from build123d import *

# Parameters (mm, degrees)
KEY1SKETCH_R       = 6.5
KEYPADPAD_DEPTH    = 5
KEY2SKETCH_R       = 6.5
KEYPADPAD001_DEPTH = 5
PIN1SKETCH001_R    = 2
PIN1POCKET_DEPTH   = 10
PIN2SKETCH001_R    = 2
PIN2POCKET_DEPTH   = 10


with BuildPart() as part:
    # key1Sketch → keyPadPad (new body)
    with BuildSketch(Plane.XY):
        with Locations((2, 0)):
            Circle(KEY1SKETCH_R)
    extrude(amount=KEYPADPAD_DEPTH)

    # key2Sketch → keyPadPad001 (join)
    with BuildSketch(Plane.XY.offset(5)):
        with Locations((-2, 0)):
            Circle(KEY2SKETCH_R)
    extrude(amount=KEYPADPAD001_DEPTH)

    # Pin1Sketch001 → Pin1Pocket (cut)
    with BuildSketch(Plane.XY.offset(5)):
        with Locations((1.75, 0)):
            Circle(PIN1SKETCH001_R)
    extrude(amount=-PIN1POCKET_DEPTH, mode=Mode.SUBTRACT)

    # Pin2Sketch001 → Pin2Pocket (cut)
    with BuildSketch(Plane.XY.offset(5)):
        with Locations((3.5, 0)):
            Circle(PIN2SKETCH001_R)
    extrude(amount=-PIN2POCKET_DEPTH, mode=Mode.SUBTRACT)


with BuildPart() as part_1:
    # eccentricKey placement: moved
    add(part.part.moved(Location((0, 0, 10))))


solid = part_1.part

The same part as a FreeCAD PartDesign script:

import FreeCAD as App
import Part
import Sketcher

V = App.Vector

doc = App.newDocument("Part")
params = doc.addObject("Spreadsheet::Sheet", "Params")
for row, (alias, value) in enumerate([
    ("sketch1_diameter", "13 mm"),
    ("pad1_length", "5 mm"),
    ("sketch2_diameter", "13 mm"),
    ("pad2_length", "5 mm"),
    ("sketch3_diameter", "4 mm"),
    ("pocket1_length", "10 mm"),
    ("sketch4_diameter", "4 mm"),
    ("pocket2_length", "10 mm"),
], start=1):
    params.set(f"A{row}", alias)
    params.set(f"B{row}", "=" + value)
    params.setAlias(f"B{row}", alias)

body = doc.addObject("PartDesign::Body", "Body")

# Sketch on XY plane
sketch1 = doc.addObject("Sketcher::SketchObject", "Sketch")
body.addObject(sketch1)
sketch1.AttachmentSupport = (doc.XY_Plane, [""])
sketch1.MapMode = "FlatFace"
sketch1.addGeometry(Part.Circle(V(2, 0, 0), V(0, 0, 1), 6), False)
sketch1.addConstraint(Sketcher.Constraint("PointOnObject", 0, 3, -1))
sketch1.addConstraint(Sketcher.Constraint("Diameter", 0, 13.0))
sketch1.addConstraint(Sketcher.Constraint("DistanceX", -1, 1, 0, 3, 2.0))
sketch1.setExpression("Constraints[1]", "Params.sketch1_diameter")
pad1 = doc.addObject("PartDesign::Pad", "Pad")
body.addObject(pad1)
pad1.Profile = sketch1
pad1.setExpression("Length", "Params.pad1_length")

# Sketch on XY plane
sketch2 = doc.addObject("Sketcher::SketchObject", "Sketch001")
body.addObject(sketch2)
sketch2.AttachmentSupport = (doc.XY_Plane, [""])
sketch2.MapMode = "FlatFace"
sketch2.AttachmentOffset = App.Placement(V(0, 0, 5), App.Rotation())
sketch2.addGeometry(Part.Circle(V(-2, 0, 0), V(0, 0, 1), 6), False)
sketch2.addConstraint(Sketcher.Constraint("PointOnObject", 0, 3, -1))
sketch2.addConstraint(Sketcher.Constraint("Diameter", 0, 13.0))
sketch2.addConstraint(Sketcher.Constraint("DistanceX", 0, 3, -1, 1, 2.0))
sketch2.setExpression("Constraints[1]", "Params.sketch2_diameter")
pad2 = doc.addObject("PartDesign::Pad", "Pad001")
body.addObject(pad2)
pad2.Profile = sketch2
pad2.setExpression("Length", "Params.pad2_length")

# Sketch on XY plane
sketch3 = doc.addObject("Sketcher::SketchObject", "Sketch002")
body.addObject(sketch3)
sketch3.AttachmentSupport = (doc.XY_Plane, [""])
sketch3.MapMode = "FlatFace"
sketch3.AttachmentOffset = App.Placement(V(0, 0, 5), App.Rotation())
sketch3.addGeometry(Part.Circle(V(1.8, 0, 0), V(0, 0, 1), 2), False)
sketch3.addConstraint(Sketcher.Constraint("PointOnObject", 0, 3, -1))
sketch3.addConstraint(Sketcher.Constraint("Diameter", 0, 4.0))
sketch3.addConstraint(Sketcher.Constraint("DistanceX", -1, 1, 0, 3, 1.75))
sketch3.setExpression("Constraints[1]", "Params.sketch3_diameter")
pocket1 = doc.addObject("PartDesign::Pocket", "Pocket")
body.addObject(pocket1)
pocket1.Profile = sketch3
pocket1.setExpression("Length", "Params.pocket1_length")

# Sketch on XY plane
sketch4 = doc.addObject("Sketcher::SketchObject", "Sketch003")
body.addObject(sketch4)
sketch4.AttachmentSupport = (doc.XY_Plane, [""])
sketch4.MapMode = "FlatFace"
sketch4.AttachmentOffset = App.Placement(V(0, 0, 5), App.Rotation())
sketch4.addGeometry(Part.Circle(V(3.5, 0, 0), V(0, 0, 1), 2), False)
sketch4.addConstraint(Sketcher.Constraint("PointOnObject", 0, 3, -1))
sketch4.addConstraint(Sketcher.Constraint("Diameter", 0, 4.0))
sketch4.addConstraint(Sketcher.Constraint("DistanceX", -1, 1, 0, 3, 3.5))
sketch4.setExpression("Constraints[1]", "Params.sketch4_diameter")
pocket2 = doc.addObject("PartDesign::Pocket", "Pocket001")
body.addObject(pocket2)
pocket2.Profile = sketch4
pocket2.setExpression("Length", "Params.pocket2_length")
body2 = doc.addObject("PartDesign::Body", "Body001")
doc.recompute()

body.Placement = App.Placement(V(0, 0, 10), App.Rotation(V(0, 0, 1), 0))
boolean = doc.addObject("PartDesign::Boolean", "Boolean")
body2.addObject(boolean)
boolean.Type = "Fuse"
boolean.addObjects([body])

doc.recompute()
